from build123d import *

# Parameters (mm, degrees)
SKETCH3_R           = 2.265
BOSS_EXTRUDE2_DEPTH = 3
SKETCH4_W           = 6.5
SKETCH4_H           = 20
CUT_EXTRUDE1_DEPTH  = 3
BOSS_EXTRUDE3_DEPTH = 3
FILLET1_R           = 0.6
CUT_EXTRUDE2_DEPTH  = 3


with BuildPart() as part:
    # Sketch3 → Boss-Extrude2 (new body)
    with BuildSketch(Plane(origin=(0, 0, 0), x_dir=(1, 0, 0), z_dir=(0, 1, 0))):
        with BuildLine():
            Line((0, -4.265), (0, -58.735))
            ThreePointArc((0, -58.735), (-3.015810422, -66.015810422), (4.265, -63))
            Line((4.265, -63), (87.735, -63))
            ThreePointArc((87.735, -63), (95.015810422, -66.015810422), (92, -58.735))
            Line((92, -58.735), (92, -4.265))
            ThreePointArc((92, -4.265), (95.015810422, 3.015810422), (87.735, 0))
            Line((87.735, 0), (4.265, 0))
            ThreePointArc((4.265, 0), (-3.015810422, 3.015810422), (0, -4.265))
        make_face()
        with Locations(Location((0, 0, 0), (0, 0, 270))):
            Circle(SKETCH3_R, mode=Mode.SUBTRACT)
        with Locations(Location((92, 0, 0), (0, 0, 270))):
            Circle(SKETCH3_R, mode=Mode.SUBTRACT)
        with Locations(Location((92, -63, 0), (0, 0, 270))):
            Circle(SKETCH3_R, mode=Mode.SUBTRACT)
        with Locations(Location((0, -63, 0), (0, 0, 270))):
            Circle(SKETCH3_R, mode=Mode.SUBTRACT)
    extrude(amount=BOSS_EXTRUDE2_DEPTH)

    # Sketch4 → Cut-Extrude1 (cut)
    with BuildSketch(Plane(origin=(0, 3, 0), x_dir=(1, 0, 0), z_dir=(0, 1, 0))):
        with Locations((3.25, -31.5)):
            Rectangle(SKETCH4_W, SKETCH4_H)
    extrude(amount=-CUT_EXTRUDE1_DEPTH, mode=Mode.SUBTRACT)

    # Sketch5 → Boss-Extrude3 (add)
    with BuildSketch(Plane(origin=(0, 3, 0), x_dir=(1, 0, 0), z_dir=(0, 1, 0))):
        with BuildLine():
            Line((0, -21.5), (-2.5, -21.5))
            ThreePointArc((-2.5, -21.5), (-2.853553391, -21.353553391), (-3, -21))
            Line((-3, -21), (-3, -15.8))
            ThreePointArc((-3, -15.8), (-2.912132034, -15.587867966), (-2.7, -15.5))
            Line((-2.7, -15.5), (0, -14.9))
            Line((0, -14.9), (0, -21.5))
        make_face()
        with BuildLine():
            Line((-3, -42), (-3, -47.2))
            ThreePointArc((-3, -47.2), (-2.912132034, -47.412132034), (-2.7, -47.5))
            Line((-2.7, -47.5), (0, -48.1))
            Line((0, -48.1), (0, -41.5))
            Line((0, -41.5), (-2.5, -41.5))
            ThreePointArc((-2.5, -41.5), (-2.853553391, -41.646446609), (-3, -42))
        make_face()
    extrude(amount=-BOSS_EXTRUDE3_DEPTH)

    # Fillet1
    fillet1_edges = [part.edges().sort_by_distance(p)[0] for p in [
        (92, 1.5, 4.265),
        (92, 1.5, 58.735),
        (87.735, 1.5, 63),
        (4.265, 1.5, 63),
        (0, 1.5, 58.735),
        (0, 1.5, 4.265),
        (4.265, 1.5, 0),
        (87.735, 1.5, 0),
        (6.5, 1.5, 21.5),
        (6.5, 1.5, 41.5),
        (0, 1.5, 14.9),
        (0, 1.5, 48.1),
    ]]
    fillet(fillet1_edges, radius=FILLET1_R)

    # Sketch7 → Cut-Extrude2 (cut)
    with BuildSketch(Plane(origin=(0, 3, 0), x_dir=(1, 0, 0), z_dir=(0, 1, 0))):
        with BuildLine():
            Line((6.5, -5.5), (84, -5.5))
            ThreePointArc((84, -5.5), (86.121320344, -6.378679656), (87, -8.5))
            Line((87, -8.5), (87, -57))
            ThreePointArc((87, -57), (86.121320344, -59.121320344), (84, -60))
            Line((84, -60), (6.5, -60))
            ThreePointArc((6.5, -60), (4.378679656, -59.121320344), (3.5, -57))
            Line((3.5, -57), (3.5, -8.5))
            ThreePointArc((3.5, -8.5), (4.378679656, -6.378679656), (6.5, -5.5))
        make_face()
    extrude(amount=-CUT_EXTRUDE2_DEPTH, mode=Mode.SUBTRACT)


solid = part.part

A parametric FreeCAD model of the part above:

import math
import FreeCAD as App
import Part
import Sketcher
Q = App.Units.Quantity


def edges_at(feature, points):
    """Names of the edges that pass closest to the given points."""
    edges = feature.Shape.Edges
    near = lambda p: min(range(len(edges)), key=lambda i: edges[i].distToShape(Part.Vertex(*p))[0])
    return sorted({f"Edge{near(p) + 1}" for p in points})

doc = App.newDocument("Part")
body = doc.addObject("PartDesign::Body", "Body")

# Sketch on XZ plane
sketch1 = body.newObject("Sketcher::SketchObject", "Sketch")
sketch1.AttachmentSupport = (doc.getObject("XZ_Plane"), [""])
sketch1.MapMode = "FlatFace"
sketch1.addGeometry(Part.LineSegment(App.Vector(0, 4.3, 0), App.Vector(0, 58.7, 0)), False)
sketch1.addGeometry(Part.ArcOfCircle(Part.Circle(App.Vector(0, 63, 0), App.Vector(0, 0, 1), 4.3), math.radians(0), math.radians(270)), False)
sketch1.addGeometry(Part.LineSegment(App.Vector(4.3, 63, 0), App.Vector(87.7, 63, 0)), False)
sketch1.addGeometry(Part.ArcOfCircle(Part.Circle(App.Vector(92, 63, 0), App.Vector(0, 0, 1), 4.3), math.radians(-90), math.radians(180)), False)
sketch1.addGeometry(Part.LineSegment(App.Vector(92, 58.7, 0), App.Vector(92, 4.3, 0)), False)
sketch1.addGeometry(Part.ArcOfCircle(Part.Circle(App.Vector(92, 0, 0), App.Vector(0, 0, 1), 4.3), math.radians(180), math.radians(450)), False)
sketch1.addGeometry(Part.LineSegment(App.Vector(87.7, 0, 0), App.Vector(4.3, 0, 0)), False)
sketch1.addGeometry(Part.ArcOfCircle(Part.Circle(App.Vector(0, 0, 0), App.Vector(0, 0, 1), 4.3), math.radians(90), math.radians(360)), False)
sketch1.addGeometry(Part.Circle(App.Vector(0, 63, 0), App.Vector(0, 0, 1), 2.3), False)
sketch1.addGeometry(Part.Circle(App.Vector(92, 63, 0), App.Vector(0, 0, 1), 2.3), False)
sketch1.addGeometry(Part.Circle(App.Vector(0, 0, 0), App.Vector(0, 0, 1), 2.3), False)
sketch1.addGeometry(Part.Circle(App.Vector(92, 0, 0), App.Vector(0, 0, 1), 2.3), False)
sketch1.addConstraint(Sketcher.Constraint("Coincident", 0, 2, 1, 2))
sketch1.addConstraint(Sketcher.Constraint("Coincident", 1, 1, 2, 1))
sketch1.addConstraint(Sketcher.Constraint("Coincident", 2, 2, 3, 2))
sketch1.addConstraint(Sketcher.Constraint("Coincident", 3, 1, 4, 1))
sketch1.addConstraint(Sketcher.Constraint("Coincident", 4, 2, 5, 2))
sketch1.addConstraint(Sketcher.Constraint("Coincident", 5, 1, 6, 1))
sketch1.addConstraint(Sketcher.Constraint("Coincident", 6, 2, 7, 2))
sketch1.addConstraint(Sketcher.Constraint("Coincident", 7, 1, 0, 1))
sketch1.addConstraint(Sketcher.Constraint("Vertical", 0))
sketch1.addConstraint(Sketcher.Constraint("Horizontal", 2))
sketch1.addConstraint(Sketcher.Constraint("Vertical", 4))
sketch1.addConstraint(Sketcher.Constraint("Horizontal", 6))
sketch1.addConstraint(Sketcher.Constraint("Coincident", 7, 3, -1, 1))
sketch1.addConstraint(Sketcher.Constraint("Coincident", 10, 3, -1, 1))
sketch1.addConstraint(Sketcher.Constraint("Coincident", 8, 3, 1, 3))
sketch1.addConstraint(Sketcher.Constraint("Coincident", 9, 3, 3, 3))
sketch1.addConstraint(Sketcher.Constraint("Coincident", 11, 3, 5, 3))
sketch1.addConstraint(Sketcher.Constraint("Equal", 1, 3))
sketch1.addConstraint(Sketcher.Constraint("Equal", 3, 5))
sketch1.addConstraint(Sketcher.Constraint("Equal", 5, 7))
sketch1.addConstraint(Sketcher.Constraint("Equal", 8, 9))
sketch1.addConstraint(Sketcher.Constraint("Equal", 9, 10))
sketch1.addConstraint(Sketcher.Constraint("Equal", 10, 11))
sketch1.addConstraint(Sketcher.Constraint("PointOnObject", 1, 3, -2))
sketch1.addConstraint(Sketcher.Constraint("PointOnObject", 5, 3, -1))
sketch1.addConstraint(Sketcher.Constraint("PointOnObject", 0, 2, -2))
sketch1.addConstraint(Sketcher.Constraint("PointOnObject", 5, 1, -1))
sketch1.addConstraint(Sketcher.Constraint("Horizontal", 1, 3, 3, 3))
sketch1.addConstraint(Sketcher.Constraint("Horizontal", 9, 3, 1, 1))
sketch1.addConstraint(Sketcher.Constraint("Vertical", 3, 3, 5, 3))
sketch1.addConstraint(Sketcher.Constraint("Vertical", 11, 3, 3, 1))
sketch1.addConstraint(Sketcher.Constraint("Diameter", 8, Q("4.53 mm")))
sketch1.addConstraint(Sketcher.Constraint("DistanceY", -1, 1, 1, 3, Q("63 mm")))
sketch1.addConstraint(Sketcher.Constraint("DistanceX", -1, 1, 3, 3, Q("92 mm")))
sketch1.addConstraint(Sketcher.Constraint("Radius", 1, Q("4.265 mm")))
pad1 = body.newObject("PartDesign::Pad", "Pad")
pad1.Profile = sketch1
pad1.Length = 3
pad1.Reversed = True

# Sketch on XZ plane
sketch2 = body.newObject("Sketcher::SketchObject", "Sketch001")
sketch2.AttachmentSupport = (doc.getObject("XZ_Plane"), [""])
sketch2.MapMode = "FlatFace"
sketch2.AttachmentOffset = App.Placement(App.Vector(0, 0, -3), App.Rotation())
sketch2.addGeometry(Part.LineSegment(App.Vector(0, 22, 0), App.Vector(0, 42, 0)), False)
sketch2.addGeometry(Part.LineSegment(App.Vector(0, 42, 0), App.Vector(6, 42, 0)), False)
sketch2.addGeometry(Part.LineSegment(App.Vector(6, 42, 0), App.Vector(6, 22, 0)), False)
sketch2.addGeometry(Part.LineSegment(App.Vector(6, 22, 0), App.Vector(0, 22, 0)), False)
sketch2.addConstraint(Sketcher.Constraint("Coincident", 0, 2, 1, 1))
sketch2.addConstraint(Sketcher.Constraint("Coincident", 1, 2, 2, 1))
sketch2.addConstraint(Sketcher.Constraint("Coincident", 2, 2, 3, 1))
sketch2.addConstraint(Sketcher.Constraint("Coincident", 3, 2, 0, 1))
sketch2.addConstraint(Sketcher.Constraint("Vertical", 0))
sketch2.addConstraint(Sketcher.Constraint("Horizontal", 1))
sketch2.addConstraint(Sketcher.Constraint("Vertical", 2))
sketch2.addConstraint(Sketcher.Constraint("Horizontal", 3))
sketch2.addConstraint(Sketcher.Constraint("PointOnObject", 0, 2, -2))
sketch2.addConstraint(Sketcher.Constraint("DistanceY", 0, 1, 0, 2, Q("20 mm")))
sketch2.addConstraint(Sketcher.Constraint("DistanceX", 1, 1, 1, 2, Q("6.5 mm")))
sketch2.addConstraint(Sketcher.Constraint("DistanceY", -1, 1, 0, 2, Q("41.5 mm")))
pocket1 = body.newObject("PartDesign::Pocket", "Pocket")
pocket1.Profile = sketch2
pocket1.Length = 3
pocket1.Reversed = True

# Sketch on XZ plane
sketch3 = body.newObject("Sketcher::SketchObject", "Sketch002")
sketch3.AttachmentSupport = (doc.getObject("XZ_Plane"), [""])
sketch3.MapMode = "FlatFace"
sketch3.AttachmentOffset = App.Placement(App.Vector(0, 0, -3), App.Rotation())
sketch3.addGeometry(Part.LineSegment(App.Vector(-2.5, 21.5, 0), App.Vector(0, 21.5, 0)), False)
sketch3.addGeometry(Part.LineSegment(App.Vector(0, 21.5, 0), App.Vector(0, 14.9, 0)), False)
sketch3.addGeometry(Part.LineSegment(App.Vector(0, 14.9, 0), App.Vector(-2.7, 15.5, 0)), False)
sketch3.addGeometry(Part.ArcOfCircle(Part.Circle(App.Vector(-2.7, 15.8, 0), App.Vector(0, 0, 1), 0.3), math.radians(-180), math.radians(-90)), False)
sketch3.addGeometry(Part.LineSegment(App.Vector(-3, 15.8, 0), App.Vector(-3, 21, 0)), False)
sketch3.addGeometry(Part.ArcOfCircle(Part.Circle(App.Vector(-2.5, 21, 0), App.Vector(0, 0, 1), 0.5), math.radians(90), math.radians(180)), False)
sketch3.addGeometry(Part.LineSegment(App.Vector(-3, 42, 0), App.Vector(-3, 47.2, 0)), False)
sketch3.addGeometry(Part.ArcOfCircle(Part.Circle(App.Vector(-2.7, 47.2, 0), App.Vector(0, 0, 1), 0.3), math.radians(90), math.radians(180)), False)
sketch3.addGeometry(Part.LineSegment(App.Vector(-2.7, 47.5, 0), App.Vector(0, 48.1, 0)), False)
sketch3.addGeometry(Part.LineSegment(App.Vector(0, 48.1, 0), App.Vector(0, 41.5, 0)), False)
sketch3.addGeometry(Part.LineSegment(App.Vector(0, 41.5, 0), App.Vector(-2.5, 41.5, 0)), False)
sketch3.addGeometry(Part.ArcOfCircle(Part.Circle(App.Vector(-2.5, 42, 0), App.Vector(0, 0, 1), 0.5), math.radians(180), math.radians(270)), False)
sketch3.addConstraint(Sketcher.Constraint("Coincident", 0, 2, 1, 1))
sketch3.addConstraint(Sketcher.Constraint("Coincident", 1, 2, 2, 1))
sketch3.addConstraint(Sketcher.Constraint("Coincident", 2, 2, 3, 2))
sketch3.addConstraint(Sketcher.Constraint("Tangent", 3, 1, 4, 1))
sketch3.addConstraint(Sketcher.Constraint("Tangent", 4, 2, 5, 2))
sketch3.addConstraint(Sketcher.Constraint("Tangent", 5, 1, 0, 1))
sketch3.addConstraint(Sketcher.Constraint("Tangent", 6, 2, 7, 2))
sketch3.addConstraint(Sketcher.Constraint("Coincident", 7, 1, 8, 1))
sketch3.addConstraint(Sketcher.Constraint("Coincident", 8, 2, 9, 1))
sketch3.addConstraint(Sketcher.Constraint("Coincident", 9, 2, 10, 1))
sketch3.addConstraint(Sketcher.Constraint("Tangent", 10, 2, 11, 2))
sketch3.addConstraint(Sketcher.Constraint("Tangent", 11, 1, 6, 1))
sketch3.addConstraint(Sketcher.Constraint("Horizontal", 0))
sketch3.addConstraint(Sketcher.Constraint("Vertical", 1))
sketch3.addConstraint(Sketcher.Constraint("Vertical", 4))
sketch3.addConstraint(Sketcher.Constraint("Vertical", 6))
sketch3.addConstraint(Sketcher.Constraint("Vertical", 9))
sketch3.addConstraint(Sketcher.Constraint("Horizontal", 10))
sketch3.addConstraint(Sketcher.Constraint("Equal", 3, 7))
sketch3.addConstraint(Sketcher.Constraint("Equal", 5, 11))
sketch3.addConstraint(Sketcher.Constraint("PointOnObject", 0, 2, -2))
sketch3.addConstraint(Sketcher.Constraint("PointOnObject", 8, 2, -2))
sketch3.addConstraint(Sketcher.Constraint("Vertical", 3, 3, 7, 3))
sketch3.addConstraint(Sketcher.Constraint("Vertical", 7, 3, 2, 2))
sketch3.addConstraint(Sketcher.Constraint("Vertical", 2, 2, 7, 1))
sketch3.addConstraint(Sketcher.Constraint("Equal", 4, 6))
sketch3.addConstraint(Sketcher.Constraint("Equal", 1, 9))
sketch3.addConstraint(Sketcher.Constraint("Radius", 3, Q("0.3 mm")))
sketch3.addConstraint(Sketcher.Constraint("Radius", 5, Q("0.5 mm")))
sketch3.addConstraint(Sketcher.Constraint("DistanceX", 0, 1, 0, 2, Q("2.5 mm")))
sketch3.addConstraint(Sketcher.Constraint("DistanceY", 1, 2, 1, 1, Q("6.6 mm")))
sketch3.addConstraint(Sketcher.Constraint("DistanceY", 4, 1, 4, 2, Q("5.2 mm")))
sketch3.addConstraint(Sketcher.Constraint("DistanceY", -1, 1, 5, 3, Q("21 mm")))
sketch3.addConstraint(Sketcher.Constraint("DistanceY", -1, 1, 11, 3, Q("42 mm")))
pad2 = body.newObject("PartDesign::Pad", "Pad001")
pad2.Profile = sketch3
pad2.Length = 3
doc.recompute()

fillet = body.newObject("PartDesign::Fillet", "Fillet")
fillet.Base = (pad2, edges_at(pad2, [
    (92, 1.5, 4.265),
    (92, 1.5, 58.735),
    (87.735, 1.5, 63),
    (4.265, 1.5, 63),
    (0, 1.5, 58.735),
    (0, 1.5, 4.265),
    (4.265, 1.5, 0),
    (87.735, 1.5, 0),
    (6.5, 1.5, 21.5),
    (6.5, 1.5, 41.5),
    (0, 1.5, 14.9),
    (0, 1.5, 48.1),
]))
fillet.Radius = 0.6

# Sketch on XZ plane
sketch4 = body.newObject("Sketcher::SketchObject", "Sketch003")
sketch4.AttachmentSupport = (doc.getObject("XZ_Plane"), [""])
sketch4.MapMode = "FlatFace"
sketch4.AttachmentOffset = App.Placement(App.Vector(0, 0, -3), App.Rotation())
sketch4.addGeometry(Part.LineSegment(App.Vector(84, 5.5, 0), App.Vector(6.5, 5.5, 0)), False)
sketch4.addGeometry(Part.ArcOfCircle(Part.Circle(App.Vector(6.5, 8.5, 0), App.Vector(0, 0, 1), 3), math.radians(180), math.radians(270)), False)
sketch4.addGeometry(Part.LineSegment(App.Vector(3.5, 8.5, 0), App.Vector(3.5, 57, 0)), False)
sketch4.addGeometry(Part.ArcOfCircle(Part.Circle(App.Vector(6.5, 57, 0), App.Vector(0, 0, 1), 3), math.radians(90), math.radians(180)), False)
sketch4.addGeometry(Part.LineSegment(App.Vector(6.5, 60, 0), App.Vector(84, 60, 0)), False)
sketch4.addGeometry(Part.ArcOfCircle(Part.Circle(App.Vector(84, 57, 0), App.Vector(0, 0, 1), 3), math.radians(0), math.radians(90)), False)
sketch4.addGeometry(Part.LineSegment(App.Vector(87, 57, 0), App.Vector(87, 8.5, 0)), False)
sketch4.addGeometry(Part.ArcOfCircle(Part.Circle(App.Vector(84, 8.5, 0), App.Vector(0, 0, 1), 3), math.radians(-90), math.radians(0)), False)
sketch4.addConstraint(Sketcher.Constraint("Tangent", 0, 2, 1, 2))
sketch4.addConstraint(Sketcher.Constraint("Tangent", 1, 1, 2, 1))
sketch4.addConstraint(Sketcher.Constraint("Tangent", 2, 2, 3, 2))
sketch4.addConstraint(Sketcher.Constraint("Tangent", 3, 1, 4, 1))
sketch4.addConstraint(Sketcher.Constraint("Tangent", 4, 2, 5, 2))
sketch4.addConstraint(Sketcher.Constraint("Tangent", 5, 1, 6, 1))
sketch4.addConstraint(Sketcher.Constraint("Tangent", 6, 2, 7, 2))
sketch4.addConstraint(Sketcher.Constraint("Tangent", 7, 1, 0, 1))
sketch4.addConstraint(Sketcher.Constraint("Horizontal", 0))
sketch4.addConstraint(Sketcher.Constraint("Vertical", 2))
sketch4.addConstraint(Sketcher.Constraint("Horizontal", 4))
sketch4.addConstraint(Sketcher.Constraint("Vertical", 6))
sketch4.addConstraint(Sketcher.Constraint("Equal", 1, 3))
sketch4.addConstraint(Sketcher.Constraint("Equal", 3, 5))
sketch4.addConstraint(Sketcher.Constraint("Equal", 5, 7))
sketch4.addConstraint(Sketcher.Constraint("Radius", 1, Q("3 mm")))
sketch4.addConstraint(Sketcher.Constraint("DistanceX", 0, 2, 0, 1, Q("77.5 mm")))
sketch4.addConstraint(Sketcher.Constraint("DistanceY", 2, 1, 2, 2, Q("48.5 mm")))
sketch4.addConstraint(Sketcher.Constraint("DistanceY", -1, 1, 3, 3, Q("57 mm")))
sketch4.addConstraint(Sketcher.Constraint("DistanceX", -1, 1, 5, 3, Q("84 mm")))
pocket2 = body.newObject("PartDesign::Pocket", "Pocket001")
pocket2.Profile = sketch4
pocket2.Length = 3
pocket2.Reversed = True

doc.recompute()
